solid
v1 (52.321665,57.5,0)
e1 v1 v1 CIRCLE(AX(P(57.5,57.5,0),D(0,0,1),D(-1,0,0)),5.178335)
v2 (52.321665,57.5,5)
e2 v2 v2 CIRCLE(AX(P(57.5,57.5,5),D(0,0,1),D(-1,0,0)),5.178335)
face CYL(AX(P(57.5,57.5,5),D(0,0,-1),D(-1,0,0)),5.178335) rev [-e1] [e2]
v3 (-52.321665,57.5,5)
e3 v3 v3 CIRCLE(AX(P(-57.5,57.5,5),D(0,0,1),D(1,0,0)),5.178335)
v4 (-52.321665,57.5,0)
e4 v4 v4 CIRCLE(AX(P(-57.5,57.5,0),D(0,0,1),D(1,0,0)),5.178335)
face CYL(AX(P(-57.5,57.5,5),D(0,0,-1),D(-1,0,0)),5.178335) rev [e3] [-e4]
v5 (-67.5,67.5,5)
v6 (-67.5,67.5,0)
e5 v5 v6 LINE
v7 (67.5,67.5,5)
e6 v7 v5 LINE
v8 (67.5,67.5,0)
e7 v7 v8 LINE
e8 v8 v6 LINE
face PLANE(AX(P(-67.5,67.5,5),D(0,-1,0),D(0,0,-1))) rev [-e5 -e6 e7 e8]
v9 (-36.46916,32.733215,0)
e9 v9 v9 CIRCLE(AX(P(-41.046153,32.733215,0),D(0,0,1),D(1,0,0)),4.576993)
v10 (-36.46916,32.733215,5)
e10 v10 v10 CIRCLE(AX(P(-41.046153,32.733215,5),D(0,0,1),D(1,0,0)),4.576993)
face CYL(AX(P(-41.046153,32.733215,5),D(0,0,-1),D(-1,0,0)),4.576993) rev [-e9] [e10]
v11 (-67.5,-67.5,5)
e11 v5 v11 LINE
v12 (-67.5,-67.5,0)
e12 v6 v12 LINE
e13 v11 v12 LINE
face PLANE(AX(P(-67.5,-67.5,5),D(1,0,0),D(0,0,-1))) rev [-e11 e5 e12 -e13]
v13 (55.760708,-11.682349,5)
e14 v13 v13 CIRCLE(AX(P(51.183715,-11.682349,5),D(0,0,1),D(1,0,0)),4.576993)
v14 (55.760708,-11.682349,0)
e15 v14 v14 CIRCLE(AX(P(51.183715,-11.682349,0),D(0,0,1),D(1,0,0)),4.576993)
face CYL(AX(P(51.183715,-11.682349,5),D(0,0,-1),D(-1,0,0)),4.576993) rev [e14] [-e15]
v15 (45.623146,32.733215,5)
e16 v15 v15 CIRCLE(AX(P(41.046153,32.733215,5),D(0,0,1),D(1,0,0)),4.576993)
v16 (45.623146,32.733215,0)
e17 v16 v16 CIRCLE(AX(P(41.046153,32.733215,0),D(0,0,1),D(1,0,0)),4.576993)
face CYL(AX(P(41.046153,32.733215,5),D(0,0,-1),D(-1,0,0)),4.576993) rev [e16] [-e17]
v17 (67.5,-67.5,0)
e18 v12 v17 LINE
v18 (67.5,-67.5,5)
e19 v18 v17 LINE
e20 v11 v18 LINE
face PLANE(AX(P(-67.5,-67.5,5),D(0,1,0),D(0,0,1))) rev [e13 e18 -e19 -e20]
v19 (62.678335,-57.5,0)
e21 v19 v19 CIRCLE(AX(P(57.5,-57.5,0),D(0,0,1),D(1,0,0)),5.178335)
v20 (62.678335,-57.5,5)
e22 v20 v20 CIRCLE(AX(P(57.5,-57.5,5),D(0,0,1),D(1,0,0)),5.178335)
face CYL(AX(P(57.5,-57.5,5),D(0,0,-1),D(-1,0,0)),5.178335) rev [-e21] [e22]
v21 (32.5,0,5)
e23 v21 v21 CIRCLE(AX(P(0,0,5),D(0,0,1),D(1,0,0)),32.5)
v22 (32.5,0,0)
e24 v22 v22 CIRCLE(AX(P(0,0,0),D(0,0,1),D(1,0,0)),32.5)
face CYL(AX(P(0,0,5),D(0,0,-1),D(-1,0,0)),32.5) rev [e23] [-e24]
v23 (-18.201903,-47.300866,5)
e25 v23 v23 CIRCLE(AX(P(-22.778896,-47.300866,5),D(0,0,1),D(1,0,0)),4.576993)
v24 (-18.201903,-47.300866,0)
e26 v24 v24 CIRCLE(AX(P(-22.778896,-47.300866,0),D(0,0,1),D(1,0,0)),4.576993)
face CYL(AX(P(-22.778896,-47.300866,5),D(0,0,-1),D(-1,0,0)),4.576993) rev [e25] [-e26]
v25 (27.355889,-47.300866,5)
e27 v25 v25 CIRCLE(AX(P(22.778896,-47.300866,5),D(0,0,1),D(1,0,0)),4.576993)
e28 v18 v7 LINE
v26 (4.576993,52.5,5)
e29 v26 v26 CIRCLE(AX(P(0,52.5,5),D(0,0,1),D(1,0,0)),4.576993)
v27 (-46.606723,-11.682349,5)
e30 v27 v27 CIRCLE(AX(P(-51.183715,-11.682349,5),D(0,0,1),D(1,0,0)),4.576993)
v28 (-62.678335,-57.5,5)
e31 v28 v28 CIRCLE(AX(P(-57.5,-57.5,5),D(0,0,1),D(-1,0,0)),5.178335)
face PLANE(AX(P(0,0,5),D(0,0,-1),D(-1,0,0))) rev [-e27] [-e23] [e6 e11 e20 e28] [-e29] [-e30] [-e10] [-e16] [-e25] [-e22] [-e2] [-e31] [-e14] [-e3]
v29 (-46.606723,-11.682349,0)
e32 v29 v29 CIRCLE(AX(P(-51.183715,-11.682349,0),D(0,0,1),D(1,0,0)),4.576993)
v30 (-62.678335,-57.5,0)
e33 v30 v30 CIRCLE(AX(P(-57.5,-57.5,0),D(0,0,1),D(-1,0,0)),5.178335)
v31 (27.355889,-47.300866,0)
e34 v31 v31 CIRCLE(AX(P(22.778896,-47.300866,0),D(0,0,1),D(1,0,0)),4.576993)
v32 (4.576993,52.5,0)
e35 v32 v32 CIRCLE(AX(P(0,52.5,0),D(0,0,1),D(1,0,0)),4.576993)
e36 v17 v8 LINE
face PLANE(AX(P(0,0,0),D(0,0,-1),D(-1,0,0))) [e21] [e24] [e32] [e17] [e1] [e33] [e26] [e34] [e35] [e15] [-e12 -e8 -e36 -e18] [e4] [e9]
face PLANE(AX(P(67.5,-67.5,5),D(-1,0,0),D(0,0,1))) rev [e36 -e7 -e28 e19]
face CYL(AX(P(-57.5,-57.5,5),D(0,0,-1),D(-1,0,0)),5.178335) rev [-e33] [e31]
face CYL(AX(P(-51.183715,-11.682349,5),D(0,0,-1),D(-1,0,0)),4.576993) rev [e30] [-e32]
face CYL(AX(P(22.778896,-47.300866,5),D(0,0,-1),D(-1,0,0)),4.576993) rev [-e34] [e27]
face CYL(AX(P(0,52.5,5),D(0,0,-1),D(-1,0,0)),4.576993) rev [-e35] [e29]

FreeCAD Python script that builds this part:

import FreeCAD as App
import Part
import Sketcher
from FreeCAD import Vector


def add_polygon(sketch, points):
    """Adds a closed chain of lines whose ends are joined by coincident constraints."""
    first, n = sketch.GeometryCount, len(points)
    for a, b in zip(points, points[1:] + points[:1]):
        sketch.addGeometry(Part.LineSegment(App.Vector(*a, 0), App.Vector(*b, 0)), False)
    for i in range(n):
        sketch.addConstraint(Sketcher.Constraint("Coincident", first + i, 2, first + (i + 1) % n, 1))

doc = App.newDocument("Part")
params = doc.addObject("Spreadsheet::Sheet", "Params")
for row, (alias, value) in enumerate([
    ("sketch1_diameter", "65 mm"),
    ("sketch1_width", "135 mm"),
    ("pad1_length", "5 mm"),
], start=1):
    params.set(f"A{row}", alias)
    params.set(f"B{row}", "=" + value)
    params.setAlias(f"B{row}", alias)

body = doc.addObject("PartDesign::Body", "Body")

# Sketch on XY plane
sketch1 = body.newObject("Sketcher::SketchObject", "Sketch")
sketch1.AttachmentSupport = (doc.getObject("XY_Plane"), [""])
sketch1.MapMode = "FlatFace"
add_polygon(sketch1, [(-67.5, 67.5), (-67.5, -67.5), (67.5, -67.5), (67.5, 67.5)])  # lines 0-3
sketch1.addGeometry(Part.Circle(Vector(-57.5, -57.5, 0), Vector(0, 0, 1), 5.2), False)  # 4
sketch1.addGeometry(Part.Circle(Vector(-22.8, -47.3, 0), Vector(0, 0, 1), 4.6), False)  # 5
sketch1.addGeometry(Part.Circle(Vector(-51.2, -11.7, 0), Vector(0, 0, 1), 4.6), False)  # 6
sketch1.addGeometry(Part.Circle(Vector(0, 0, 0), Vector(0, 0, 1), 32.5), False)  # 7
sketch1.addGeometry(Part.Circle(Vector(22.8, -47.3, 0), Vector(0, 0, 1), 4.6), False)  # 8
sketch1.addGeometry(Part.Circle(Vector(57.5, -57.5, 0), Vector(0, 0, 1), 5.2), False)  # 9
sketch1.addGeometry(Part.Circle(Vector(51.2, -11.7, 0), Vector(0, 0, 1), 4.6), False)  # 10
sketch1.addGeometry(Part.Circle(Vector(-41, 32.7, 0), Vector(0, 0, 1), 4.6), False)  # 11
sketch1.addGeometry(Part.Circle(Vector(-57.5, 57.5, 0), Vector(0, 0, 1), 5.2), False)  # 12
sketch1.addGeometry(Part.Circle(Vector(0, 52.5, 0), Vector(0, 0, 1), 4.6), False)  # 13
sketch1.addGeometry(Part.Circle(Vector(41, 32.7, 0), Vector(0, 0, 1), 4.6), False)  # 14
sketch1.addGeometry(Part.Circle(Vector(57.5, 57.5, 0), Vector(0, 0, 1), 5.2), False)  # 15
sketch1.addConstraint([
    Sketcher.Constraint("Vertical", 0),
    Sketcher.Constraint("Horizontal", 1),
    Sketcher.Constraint("Vertical", 2),
    Sketcher.Constraint("Horizontal", 3),
    Sketcher.Constraint("Coincident", 7, 3, -1, 1),
    Sketcher.Constraint("Equal", 5, 6),
    Sketcher.Constraint("Equal", 6, 8),
    Sketcher.Constraint("Equal", 4, 9),
    Sketcher.Constraint("Equal", 8, 10),
    Sketcher.Constraint("Equal", 10, 11),
    Sketcher.Constraint("Equal", 9, 12),
    Sketcher.Constraint("Equal", 11, 13),
    Sketcher.Constraint("Equal", 13, 14),
    Sketcher.Constraint("Equal", 12, 15),
    Sketcher.Constraint("Symmetric", 9, 3, 12, 3, -1, 1),
    Sketcher.Constraint("Symmetric", 4, 3, 15, 3, -1, 1),
    Sketcher.Constraint("Symmetric", 0, 2, 2, 2, -1, 1),
    Sketcher.Constraint("Symmetric", 5, 3, 8, 3, -2),
    Sketcher.Constraint("Symmetric", 4, 3, 9, 3, -2),
    Sketcher.Constraint("Symmetric", 6, 3, 10, 3, -2),
    Sketcher.Constraint("Symmetric", 11, 3, 14, 3, -2),
    Sketcher.Constraint("PointOnObject", 13, 3, -2),
    Sketcher.Constraint("Equal", 3, 0),
    Sketcher.Constraint("Diameter", 7, 65.0),
    Sketcher.Constraint("DistanceX", 1, 1, 1, 2, 135.0),
    Sketcher.Constraint("DistanceX", 4, 3, 9, 3, 115.0),
    Sketcher.Constraint("DistanceY", 4, 3, 12, 3, 115.0),
    Sketcher.Constraint("DistanceY", 13, 3, 12, 3, 5.0),
    Sketcher.Constraint("Diameter", 4, 10.356669),
    Sketcher.Constraint("Diameter", 5, 9.153986),
    Sketcher.Constraint("DistanceY", 6, 3, -1, 1, 11.682349),
    Sketcher.Constraint("DistanceX", 6, 3, 5, 3, 28.404819),
    Sketcher.Constraint("DistanceX", 6, 3, 8, 3, 73.962612),
    Sketcher.Constraint("DistanceY", 5, 3, 11, 3, 80.03408),
    Sketcher.Constraint("DistanceX", 11, 3, 8, 3, 63.825049),
    Sketcher.Constraint("DistanceY", 5, 3, -1, 1, 47.300866),
])
sketch1.setExpression("Constraints[27]", "Params.sketch1_diameter")
sketch1.setExpression("Constraints[28]", "Params.sketch1_width")
pad1 = body.newObject("PartDesign::Pad", "Pad")
pad1.Profile = sketch1
pad1.setExpression("Length", "Params.pad1_length")

doc.recompute()
